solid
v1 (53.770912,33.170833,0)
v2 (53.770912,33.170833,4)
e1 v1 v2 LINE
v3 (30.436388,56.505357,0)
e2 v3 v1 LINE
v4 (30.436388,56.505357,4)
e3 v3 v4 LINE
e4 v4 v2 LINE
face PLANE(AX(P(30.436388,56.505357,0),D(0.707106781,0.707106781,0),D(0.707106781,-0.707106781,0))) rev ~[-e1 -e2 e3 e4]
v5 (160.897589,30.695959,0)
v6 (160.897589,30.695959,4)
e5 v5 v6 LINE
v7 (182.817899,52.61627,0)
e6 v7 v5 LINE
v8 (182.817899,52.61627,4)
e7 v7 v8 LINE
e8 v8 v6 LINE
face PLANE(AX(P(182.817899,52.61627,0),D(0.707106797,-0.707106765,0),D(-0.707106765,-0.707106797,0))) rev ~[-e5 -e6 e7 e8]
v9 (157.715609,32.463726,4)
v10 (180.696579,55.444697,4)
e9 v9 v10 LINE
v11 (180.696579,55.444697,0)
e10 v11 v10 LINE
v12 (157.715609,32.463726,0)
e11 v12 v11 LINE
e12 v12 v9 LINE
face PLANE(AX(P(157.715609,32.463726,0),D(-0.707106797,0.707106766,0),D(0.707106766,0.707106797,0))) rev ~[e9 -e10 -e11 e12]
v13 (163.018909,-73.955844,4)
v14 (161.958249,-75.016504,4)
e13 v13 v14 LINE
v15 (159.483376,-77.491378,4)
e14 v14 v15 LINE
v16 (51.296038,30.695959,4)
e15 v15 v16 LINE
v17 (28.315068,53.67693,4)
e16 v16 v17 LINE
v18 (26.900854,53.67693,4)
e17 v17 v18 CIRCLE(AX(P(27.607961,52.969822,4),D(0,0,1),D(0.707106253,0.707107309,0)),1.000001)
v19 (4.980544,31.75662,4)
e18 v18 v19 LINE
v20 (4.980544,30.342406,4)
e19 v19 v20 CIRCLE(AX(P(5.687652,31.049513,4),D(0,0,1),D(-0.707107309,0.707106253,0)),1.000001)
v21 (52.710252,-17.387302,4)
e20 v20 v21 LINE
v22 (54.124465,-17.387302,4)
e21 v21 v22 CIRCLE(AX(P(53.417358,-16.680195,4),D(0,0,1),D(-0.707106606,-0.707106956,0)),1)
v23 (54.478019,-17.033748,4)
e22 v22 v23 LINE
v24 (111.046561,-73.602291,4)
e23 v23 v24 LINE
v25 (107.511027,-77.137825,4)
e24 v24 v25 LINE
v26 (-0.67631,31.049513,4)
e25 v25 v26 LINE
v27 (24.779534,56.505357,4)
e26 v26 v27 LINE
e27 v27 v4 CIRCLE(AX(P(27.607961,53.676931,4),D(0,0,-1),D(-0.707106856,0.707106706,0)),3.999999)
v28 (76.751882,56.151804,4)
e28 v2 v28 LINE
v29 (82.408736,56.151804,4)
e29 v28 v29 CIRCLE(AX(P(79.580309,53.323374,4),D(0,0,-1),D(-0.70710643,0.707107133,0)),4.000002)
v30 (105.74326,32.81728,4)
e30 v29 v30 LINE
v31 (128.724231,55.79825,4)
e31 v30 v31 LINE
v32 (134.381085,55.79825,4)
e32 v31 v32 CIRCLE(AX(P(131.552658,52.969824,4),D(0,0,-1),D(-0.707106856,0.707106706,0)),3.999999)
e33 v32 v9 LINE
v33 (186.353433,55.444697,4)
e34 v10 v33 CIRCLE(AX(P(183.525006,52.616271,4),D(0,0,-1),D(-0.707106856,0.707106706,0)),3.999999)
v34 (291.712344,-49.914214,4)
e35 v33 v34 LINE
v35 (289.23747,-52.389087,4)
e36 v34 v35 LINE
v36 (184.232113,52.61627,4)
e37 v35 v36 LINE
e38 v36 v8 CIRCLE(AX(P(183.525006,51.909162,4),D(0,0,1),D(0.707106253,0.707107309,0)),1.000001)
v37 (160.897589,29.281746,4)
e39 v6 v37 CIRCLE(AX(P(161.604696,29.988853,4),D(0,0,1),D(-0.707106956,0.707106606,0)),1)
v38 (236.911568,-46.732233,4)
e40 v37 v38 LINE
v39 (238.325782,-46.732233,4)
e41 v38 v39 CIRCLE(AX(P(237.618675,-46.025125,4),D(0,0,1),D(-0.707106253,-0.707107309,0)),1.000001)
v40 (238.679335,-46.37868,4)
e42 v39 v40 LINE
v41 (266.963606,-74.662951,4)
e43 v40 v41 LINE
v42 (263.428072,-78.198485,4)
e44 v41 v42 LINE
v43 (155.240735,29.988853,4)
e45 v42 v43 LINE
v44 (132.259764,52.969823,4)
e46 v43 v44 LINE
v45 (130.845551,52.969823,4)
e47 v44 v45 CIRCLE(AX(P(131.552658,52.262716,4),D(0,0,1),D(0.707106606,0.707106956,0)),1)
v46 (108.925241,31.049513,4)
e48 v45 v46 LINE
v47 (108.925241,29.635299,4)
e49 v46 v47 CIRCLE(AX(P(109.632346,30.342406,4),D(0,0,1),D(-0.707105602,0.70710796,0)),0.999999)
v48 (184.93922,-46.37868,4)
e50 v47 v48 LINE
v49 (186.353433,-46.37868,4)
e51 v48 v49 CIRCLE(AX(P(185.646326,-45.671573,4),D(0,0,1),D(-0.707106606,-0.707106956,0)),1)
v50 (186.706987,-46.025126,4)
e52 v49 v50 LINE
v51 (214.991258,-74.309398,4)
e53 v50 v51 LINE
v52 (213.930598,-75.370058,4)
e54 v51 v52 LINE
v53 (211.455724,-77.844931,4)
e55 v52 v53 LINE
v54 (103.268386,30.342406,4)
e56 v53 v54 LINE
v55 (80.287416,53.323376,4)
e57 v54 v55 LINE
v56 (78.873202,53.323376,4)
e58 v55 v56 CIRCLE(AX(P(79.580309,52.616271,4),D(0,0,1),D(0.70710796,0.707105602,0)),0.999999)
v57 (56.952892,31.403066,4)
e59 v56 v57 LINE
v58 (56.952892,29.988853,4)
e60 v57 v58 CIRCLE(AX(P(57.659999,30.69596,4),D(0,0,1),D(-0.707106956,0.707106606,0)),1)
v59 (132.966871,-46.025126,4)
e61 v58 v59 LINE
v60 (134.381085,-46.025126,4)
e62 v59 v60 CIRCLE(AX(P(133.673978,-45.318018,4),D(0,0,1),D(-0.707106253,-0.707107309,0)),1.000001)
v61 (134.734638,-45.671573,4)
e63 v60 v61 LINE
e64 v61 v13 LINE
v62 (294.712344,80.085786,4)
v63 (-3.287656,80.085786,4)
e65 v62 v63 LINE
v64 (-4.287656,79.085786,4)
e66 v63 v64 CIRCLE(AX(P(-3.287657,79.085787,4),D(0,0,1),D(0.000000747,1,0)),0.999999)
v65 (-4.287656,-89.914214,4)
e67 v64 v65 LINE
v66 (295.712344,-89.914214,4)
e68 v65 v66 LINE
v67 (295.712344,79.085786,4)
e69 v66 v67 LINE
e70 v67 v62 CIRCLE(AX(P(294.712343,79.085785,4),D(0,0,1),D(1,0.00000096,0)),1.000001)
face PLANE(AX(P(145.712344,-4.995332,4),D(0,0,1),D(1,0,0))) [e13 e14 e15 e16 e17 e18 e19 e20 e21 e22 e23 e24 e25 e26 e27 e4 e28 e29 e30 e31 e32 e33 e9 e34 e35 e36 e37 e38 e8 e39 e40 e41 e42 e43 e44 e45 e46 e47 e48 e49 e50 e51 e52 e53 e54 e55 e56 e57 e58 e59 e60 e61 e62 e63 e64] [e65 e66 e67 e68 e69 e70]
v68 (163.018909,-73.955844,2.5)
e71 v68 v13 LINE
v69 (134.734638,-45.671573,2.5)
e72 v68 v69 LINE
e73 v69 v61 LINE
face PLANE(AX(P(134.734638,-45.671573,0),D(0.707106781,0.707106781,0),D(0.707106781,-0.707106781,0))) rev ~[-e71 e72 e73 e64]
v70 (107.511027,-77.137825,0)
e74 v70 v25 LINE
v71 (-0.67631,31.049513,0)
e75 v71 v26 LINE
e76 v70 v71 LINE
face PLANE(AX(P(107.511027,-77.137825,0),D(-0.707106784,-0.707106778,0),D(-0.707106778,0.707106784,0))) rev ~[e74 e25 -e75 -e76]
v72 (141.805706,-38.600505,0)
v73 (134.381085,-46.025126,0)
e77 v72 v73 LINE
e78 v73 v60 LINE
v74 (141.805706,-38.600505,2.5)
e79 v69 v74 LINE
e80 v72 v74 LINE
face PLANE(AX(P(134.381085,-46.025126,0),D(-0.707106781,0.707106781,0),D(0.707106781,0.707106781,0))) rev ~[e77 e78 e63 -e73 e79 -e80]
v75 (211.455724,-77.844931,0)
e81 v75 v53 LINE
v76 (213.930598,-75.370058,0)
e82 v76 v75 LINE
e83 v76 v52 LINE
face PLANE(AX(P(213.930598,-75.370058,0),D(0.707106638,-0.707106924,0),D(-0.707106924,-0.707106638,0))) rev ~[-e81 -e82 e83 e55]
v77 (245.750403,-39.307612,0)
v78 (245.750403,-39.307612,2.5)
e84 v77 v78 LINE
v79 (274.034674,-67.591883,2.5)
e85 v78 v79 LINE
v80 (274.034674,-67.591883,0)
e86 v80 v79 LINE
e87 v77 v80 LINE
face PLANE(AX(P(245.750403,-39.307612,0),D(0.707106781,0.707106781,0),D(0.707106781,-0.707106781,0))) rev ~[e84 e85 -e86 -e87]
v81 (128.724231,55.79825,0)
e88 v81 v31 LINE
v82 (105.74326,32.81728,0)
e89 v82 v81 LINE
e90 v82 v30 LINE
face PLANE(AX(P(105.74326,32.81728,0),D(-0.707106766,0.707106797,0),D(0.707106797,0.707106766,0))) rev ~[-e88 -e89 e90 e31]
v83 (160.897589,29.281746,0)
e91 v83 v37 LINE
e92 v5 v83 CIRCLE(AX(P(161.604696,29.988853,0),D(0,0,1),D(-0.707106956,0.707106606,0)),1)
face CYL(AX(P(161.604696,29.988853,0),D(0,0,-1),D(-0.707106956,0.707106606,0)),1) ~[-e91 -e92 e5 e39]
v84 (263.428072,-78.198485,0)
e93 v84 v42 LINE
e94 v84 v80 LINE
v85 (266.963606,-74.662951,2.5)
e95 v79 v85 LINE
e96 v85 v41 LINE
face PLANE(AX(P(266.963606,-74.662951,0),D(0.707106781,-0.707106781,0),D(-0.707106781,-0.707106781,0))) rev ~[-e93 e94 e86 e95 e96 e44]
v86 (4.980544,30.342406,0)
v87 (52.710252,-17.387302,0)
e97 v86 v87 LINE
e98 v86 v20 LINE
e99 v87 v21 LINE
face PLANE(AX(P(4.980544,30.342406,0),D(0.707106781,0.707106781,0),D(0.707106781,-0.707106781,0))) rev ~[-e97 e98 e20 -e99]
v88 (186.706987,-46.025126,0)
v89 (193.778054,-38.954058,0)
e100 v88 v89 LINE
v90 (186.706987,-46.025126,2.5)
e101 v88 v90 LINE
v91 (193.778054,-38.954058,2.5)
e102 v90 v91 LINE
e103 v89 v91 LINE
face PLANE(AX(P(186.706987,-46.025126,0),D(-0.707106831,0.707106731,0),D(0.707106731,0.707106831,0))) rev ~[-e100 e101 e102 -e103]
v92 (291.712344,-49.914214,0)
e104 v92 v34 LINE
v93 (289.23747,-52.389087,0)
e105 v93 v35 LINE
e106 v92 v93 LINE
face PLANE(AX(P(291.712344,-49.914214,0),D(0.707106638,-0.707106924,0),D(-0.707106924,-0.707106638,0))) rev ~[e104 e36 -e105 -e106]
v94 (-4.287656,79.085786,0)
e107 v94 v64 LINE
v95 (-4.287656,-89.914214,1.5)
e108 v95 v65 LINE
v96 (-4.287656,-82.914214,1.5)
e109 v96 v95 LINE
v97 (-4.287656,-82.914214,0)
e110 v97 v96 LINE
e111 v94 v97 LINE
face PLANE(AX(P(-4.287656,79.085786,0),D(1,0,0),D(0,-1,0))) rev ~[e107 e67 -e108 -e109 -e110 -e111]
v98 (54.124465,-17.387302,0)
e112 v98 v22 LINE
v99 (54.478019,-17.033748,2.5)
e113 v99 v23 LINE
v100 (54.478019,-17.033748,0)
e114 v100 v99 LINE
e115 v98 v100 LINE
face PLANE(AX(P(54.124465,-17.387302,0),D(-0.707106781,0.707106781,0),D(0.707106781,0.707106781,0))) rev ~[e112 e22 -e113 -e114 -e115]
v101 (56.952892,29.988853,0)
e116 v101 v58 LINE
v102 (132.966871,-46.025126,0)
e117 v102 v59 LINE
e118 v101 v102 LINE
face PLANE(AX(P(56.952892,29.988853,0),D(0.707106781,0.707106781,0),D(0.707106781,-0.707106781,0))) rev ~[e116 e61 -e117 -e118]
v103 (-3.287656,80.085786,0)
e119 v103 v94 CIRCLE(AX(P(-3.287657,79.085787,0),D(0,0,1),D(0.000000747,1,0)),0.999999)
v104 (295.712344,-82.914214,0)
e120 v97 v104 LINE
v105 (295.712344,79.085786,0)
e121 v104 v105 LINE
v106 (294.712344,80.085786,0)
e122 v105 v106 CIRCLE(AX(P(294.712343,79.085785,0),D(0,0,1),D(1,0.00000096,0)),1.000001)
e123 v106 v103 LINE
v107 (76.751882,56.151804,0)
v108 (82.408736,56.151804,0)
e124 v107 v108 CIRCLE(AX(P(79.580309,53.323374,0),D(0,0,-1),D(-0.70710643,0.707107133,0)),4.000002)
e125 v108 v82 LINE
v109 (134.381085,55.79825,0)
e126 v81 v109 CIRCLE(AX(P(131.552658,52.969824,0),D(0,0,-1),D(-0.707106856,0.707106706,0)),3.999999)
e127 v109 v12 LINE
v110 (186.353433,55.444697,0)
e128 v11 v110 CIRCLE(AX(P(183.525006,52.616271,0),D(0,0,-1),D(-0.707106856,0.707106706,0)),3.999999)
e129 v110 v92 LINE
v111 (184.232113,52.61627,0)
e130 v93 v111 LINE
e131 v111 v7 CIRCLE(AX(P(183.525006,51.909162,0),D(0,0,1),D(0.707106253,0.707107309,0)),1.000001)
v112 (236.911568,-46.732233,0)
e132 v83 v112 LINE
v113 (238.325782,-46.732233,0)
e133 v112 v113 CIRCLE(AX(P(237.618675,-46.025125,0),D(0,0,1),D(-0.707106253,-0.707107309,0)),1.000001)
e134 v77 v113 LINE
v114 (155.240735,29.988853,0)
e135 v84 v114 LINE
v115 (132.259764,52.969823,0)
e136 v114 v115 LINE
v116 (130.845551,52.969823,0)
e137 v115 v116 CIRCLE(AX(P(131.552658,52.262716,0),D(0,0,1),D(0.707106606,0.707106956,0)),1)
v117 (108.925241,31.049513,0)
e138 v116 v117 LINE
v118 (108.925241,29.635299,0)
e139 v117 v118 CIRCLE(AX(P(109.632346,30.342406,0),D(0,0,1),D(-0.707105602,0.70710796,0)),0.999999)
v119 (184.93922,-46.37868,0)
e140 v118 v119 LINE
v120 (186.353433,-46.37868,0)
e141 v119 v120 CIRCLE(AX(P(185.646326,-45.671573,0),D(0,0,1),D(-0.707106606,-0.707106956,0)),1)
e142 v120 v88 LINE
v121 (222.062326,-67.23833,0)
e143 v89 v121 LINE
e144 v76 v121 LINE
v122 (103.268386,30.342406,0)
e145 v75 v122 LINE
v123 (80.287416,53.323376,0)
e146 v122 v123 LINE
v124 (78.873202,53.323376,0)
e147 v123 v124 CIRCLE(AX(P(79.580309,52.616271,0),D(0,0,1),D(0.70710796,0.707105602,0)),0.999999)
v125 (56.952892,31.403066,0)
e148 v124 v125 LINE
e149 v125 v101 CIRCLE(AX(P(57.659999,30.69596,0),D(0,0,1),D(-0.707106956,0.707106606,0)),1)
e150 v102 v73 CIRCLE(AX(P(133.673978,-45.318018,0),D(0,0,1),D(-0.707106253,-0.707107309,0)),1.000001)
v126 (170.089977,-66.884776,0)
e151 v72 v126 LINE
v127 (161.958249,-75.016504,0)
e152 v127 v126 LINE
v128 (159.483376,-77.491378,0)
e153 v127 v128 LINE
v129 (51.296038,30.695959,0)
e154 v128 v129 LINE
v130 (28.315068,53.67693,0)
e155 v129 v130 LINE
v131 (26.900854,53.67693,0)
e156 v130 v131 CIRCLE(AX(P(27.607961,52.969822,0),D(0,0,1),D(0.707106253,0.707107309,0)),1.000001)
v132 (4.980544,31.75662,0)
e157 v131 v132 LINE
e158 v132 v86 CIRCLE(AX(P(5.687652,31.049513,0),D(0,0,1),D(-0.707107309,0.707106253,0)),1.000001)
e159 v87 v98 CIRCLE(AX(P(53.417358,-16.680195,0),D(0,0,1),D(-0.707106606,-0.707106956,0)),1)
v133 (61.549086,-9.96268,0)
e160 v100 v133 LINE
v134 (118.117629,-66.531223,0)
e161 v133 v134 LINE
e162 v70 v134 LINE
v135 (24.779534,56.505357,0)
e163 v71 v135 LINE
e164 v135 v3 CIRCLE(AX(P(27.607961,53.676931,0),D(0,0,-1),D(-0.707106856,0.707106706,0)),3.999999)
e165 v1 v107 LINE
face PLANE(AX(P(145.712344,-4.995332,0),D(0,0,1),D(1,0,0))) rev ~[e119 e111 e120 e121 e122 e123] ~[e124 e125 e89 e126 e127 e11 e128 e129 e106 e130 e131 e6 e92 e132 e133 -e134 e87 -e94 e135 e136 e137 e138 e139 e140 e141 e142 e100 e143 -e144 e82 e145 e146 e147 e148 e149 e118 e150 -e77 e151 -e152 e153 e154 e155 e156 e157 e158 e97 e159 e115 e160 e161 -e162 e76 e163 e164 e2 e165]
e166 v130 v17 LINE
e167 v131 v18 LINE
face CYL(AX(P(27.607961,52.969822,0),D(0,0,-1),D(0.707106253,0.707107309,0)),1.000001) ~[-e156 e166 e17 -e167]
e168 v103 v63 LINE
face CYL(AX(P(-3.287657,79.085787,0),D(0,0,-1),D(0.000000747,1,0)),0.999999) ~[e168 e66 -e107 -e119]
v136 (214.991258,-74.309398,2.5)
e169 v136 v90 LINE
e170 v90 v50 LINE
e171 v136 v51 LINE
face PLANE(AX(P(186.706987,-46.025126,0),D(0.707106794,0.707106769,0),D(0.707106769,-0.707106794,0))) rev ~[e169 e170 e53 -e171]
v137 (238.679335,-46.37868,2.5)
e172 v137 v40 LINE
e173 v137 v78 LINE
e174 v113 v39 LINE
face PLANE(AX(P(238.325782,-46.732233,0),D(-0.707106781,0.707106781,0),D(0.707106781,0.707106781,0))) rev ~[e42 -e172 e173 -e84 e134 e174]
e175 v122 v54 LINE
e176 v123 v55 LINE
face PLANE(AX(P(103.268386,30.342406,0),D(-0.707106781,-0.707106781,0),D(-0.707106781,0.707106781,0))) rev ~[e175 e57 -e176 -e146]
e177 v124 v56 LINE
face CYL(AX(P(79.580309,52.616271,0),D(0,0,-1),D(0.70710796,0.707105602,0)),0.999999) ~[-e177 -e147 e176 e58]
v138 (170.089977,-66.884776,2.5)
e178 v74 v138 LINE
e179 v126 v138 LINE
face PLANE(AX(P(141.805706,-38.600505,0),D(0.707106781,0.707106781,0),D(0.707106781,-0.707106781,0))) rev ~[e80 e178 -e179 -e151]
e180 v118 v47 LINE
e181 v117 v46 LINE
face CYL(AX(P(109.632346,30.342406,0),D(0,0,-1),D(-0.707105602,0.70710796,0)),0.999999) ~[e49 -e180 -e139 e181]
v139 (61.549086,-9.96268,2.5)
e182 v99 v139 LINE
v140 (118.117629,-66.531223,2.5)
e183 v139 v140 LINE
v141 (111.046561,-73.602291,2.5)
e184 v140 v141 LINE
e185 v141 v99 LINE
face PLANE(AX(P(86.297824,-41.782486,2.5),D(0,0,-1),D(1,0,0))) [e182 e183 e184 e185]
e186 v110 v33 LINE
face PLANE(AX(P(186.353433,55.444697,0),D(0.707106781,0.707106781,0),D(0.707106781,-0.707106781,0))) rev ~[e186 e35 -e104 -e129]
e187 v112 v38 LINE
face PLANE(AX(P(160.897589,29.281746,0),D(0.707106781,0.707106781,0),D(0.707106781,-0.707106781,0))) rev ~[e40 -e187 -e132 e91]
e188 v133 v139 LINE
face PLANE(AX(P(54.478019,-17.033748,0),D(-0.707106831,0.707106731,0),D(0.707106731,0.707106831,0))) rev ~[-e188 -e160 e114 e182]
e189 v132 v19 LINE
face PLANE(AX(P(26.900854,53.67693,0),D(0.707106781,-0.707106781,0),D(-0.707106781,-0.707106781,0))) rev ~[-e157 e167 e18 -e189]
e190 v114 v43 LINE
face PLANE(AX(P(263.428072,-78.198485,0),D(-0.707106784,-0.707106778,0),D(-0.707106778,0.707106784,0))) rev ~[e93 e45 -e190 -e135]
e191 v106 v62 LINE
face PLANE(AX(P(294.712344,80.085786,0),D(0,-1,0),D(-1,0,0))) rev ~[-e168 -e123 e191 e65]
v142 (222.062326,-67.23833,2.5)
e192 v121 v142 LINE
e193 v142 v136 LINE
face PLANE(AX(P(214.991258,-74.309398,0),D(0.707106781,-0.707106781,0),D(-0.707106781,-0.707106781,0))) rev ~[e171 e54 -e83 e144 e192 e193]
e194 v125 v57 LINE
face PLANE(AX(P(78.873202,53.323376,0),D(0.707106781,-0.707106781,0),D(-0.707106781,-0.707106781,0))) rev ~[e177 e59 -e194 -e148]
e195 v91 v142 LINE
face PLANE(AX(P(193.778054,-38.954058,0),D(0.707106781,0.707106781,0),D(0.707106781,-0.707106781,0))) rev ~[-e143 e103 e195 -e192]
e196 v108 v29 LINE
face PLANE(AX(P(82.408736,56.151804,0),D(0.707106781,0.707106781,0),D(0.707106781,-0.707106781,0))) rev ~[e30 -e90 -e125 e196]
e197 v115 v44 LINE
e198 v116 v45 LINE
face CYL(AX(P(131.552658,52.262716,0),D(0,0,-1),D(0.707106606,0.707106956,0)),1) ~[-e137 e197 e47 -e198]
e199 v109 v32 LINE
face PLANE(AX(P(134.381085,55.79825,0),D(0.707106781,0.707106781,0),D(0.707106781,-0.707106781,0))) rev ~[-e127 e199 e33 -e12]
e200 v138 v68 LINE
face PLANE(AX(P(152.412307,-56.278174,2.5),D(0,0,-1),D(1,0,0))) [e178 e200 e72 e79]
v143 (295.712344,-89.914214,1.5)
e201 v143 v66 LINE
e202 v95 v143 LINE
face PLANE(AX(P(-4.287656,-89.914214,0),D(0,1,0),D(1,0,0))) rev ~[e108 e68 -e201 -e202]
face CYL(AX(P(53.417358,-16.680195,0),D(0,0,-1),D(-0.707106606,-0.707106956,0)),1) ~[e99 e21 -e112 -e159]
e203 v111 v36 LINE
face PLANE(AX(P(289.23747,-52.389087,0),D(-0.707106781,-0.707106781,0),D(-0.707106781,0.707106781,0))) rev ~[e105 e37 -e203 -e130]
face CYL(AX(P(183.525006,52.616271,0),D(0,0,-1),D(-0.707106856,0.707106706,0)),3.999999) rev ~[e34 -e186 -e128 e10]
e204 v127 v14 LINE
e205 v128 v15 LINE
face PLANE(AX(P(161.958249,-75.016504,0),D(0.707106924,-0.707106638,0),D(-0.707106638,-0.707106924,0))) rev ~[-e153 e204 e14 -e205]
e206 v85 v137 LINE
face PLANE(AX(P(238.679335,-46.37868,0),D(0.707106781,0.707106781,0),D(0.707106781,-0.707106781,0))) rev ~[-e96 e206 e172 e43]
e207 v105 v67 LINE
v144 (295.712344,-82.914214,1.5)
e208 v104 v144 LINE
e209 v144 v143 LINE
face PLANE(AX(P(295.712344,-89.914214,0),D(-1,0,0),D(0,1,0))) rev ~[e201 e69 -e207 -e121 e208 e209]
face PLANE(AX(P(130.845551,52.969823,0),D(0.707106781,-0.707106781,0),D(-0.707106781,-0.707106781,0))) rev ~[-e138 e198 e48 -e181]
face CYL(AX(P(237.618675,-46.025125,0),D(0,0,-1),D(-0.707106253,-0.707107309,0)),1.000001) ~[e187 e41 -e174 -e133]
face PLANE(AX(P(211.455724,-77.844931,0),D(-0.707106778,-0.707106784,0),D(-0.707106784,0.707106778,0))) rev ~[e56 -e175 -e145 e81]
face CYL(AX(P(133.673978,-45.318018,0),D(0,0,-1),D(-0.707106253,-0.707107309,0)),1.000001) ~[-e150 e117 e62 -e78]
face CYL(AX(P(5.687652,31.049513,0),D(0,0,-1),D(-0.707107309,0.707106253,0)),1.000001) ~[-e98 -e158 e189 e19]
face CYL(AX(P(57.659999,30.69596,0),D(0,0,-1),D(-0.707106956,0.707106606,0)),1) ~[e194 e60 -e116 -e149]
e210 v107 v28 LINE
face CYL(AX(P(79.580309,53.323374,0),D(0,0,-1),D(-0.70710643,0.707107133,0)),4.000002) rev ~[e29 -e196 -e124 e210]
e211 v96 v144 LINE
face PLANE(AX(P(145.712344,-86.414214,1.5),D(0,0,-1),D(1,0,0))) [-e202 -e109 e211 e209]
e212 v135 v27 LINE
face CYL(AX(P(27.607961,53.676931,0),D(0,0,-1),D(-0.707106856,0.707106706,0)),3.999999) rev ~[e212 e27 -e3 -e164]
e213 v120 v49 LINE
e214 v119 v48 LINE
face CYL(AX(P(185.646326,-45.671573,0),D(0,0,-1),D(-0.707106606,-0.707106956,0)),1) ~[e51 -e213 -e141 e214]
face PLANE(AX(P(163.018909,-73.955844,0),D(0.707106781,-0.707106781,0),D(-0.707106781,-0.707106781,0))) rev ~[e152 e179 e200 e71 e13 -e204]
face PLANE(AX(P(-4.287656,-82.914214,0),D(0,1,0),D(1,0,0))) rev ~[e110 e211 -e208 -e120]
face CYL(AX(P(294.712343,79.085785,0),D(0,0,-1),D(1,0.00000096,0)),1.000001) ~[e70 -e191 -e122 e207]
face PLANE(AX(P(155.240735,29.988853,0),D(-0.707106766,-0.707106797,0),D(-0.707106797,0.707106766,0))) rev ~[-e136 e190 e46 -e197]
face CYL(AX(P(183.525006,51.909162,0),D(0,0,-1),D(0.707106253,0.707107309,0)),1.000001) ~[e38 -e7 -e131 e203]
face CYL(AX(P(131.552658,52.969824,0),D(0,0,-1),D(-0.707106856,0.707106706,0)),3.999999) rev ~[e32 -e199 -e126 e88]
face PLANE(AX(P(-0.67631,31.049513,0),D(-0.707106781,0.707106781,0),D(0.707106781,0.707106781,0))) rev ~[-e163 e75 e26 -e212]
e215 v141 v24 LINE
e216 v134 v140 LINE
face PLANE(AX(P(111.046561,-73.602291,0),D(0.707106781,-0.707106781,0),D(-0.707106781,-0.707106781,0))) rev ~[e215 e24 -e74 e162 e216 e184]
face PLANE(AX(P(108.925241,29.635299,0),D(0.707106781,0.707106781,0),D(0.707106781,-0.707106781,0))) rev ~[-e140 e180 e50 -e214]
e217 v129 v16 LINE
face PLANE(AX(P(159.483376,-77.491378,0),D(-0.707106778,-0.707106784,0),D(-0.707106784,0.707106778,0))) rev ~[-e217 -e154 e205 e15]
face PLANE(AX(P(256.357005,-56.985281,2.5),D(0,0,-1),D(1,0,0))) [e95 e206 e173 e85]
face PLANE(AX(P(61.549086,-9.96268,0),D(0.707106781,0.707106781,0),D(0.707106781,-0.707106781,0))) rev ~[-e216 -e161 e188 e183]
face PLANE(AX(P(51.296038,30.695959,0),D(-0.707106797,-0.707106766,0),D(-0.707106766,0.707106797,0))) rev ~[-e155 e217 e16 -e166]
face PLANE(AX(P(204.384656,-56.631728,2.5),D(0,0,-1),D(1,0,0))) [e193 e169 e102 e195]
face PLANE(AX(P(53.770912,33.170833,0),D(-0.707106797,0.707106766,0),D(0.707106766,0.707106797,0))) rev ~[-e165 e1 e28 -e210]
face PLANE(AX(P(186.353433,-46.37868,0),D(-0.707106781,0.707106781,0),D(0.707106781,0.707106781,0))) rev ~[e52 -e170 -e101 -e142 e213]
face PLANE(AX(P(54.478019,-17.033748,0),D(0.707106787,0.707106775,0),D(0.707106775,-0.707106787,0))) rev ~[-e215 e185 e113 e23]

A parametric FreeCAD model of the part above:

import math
import FreeCAD as App
import Part
import Sketcher
from FreeCAD import Vector
Q = App.Units.Quantity

doc = App.newDocument("Part")
params = doc.addObject("Spreadsheet::Sheet", "Params")
for row, (alias, value) in enumerate([
    ("sketch1_radius", "1.000001 mm"),
    ("sketch1_radius2", "3.999999 mm"),
    ("sketch1_width", "300 mm"),
    ("sketch1_height", "169 mm"),
    ("sketch1_length", "149.000001 mm"),
    ("pad1_length", "4 mm"),
    ("sketch2_width", "300 mm"),
    ("sketch2_height", "7 mm"),
    ("pocket1_length", "1.5 mm"),
    ("sketch3_length", "10 mm"),
    ("sketch3_length2", "80 mm"),
    ("sketch3_length3", "40 mm"),
    ("pocket2_length", "2.5 mm"),
], start=1):
    params.set(f"A{row}", alias)
    params.set(f"B{row}", "=" + value)
    params.setAlias(f"B{row}", alias)

body = doc.addObject("PartDesign::Body", "Body")

sketch1 = body.newObject("Sketcher::SketchObject", "Sketch")
sketch1.AttachmentSupport = (doc.getObject("XY_Plane"), [""])
sketch1.MapMode = "FlatFace"
sketch1.addGeometry(Part.LineSegment(Vector(-4.29, -89.91, 0), Vector(295.71, -89.91, 0)), False)
sketch1.addGeometry(Part.LineSegment(Vector(295.71, -89.91, 0), Vector(295.71, 79.09, 0)), False)
sketch1.addGeometry(Part.ArcOfCircle(Part.Circle(Vector(294.71, 79.09, 0), Vector(0, 0, 1), 1), math.radians(0), math.radians(90)), False)
sketch1.addGeometry(Part.LineSegment(Vector(294.71, 80.09, 0), Vector(-3.29, 80.09, 0)), False)
sketch1.addGeometry(Part.ArcOfCircle(Part.Circle(Vector(-3.29, 79.09, 0), Vector(0, 0, 1), 1), math.radians(90), math.radians(180)), False)
sketch1.addGeometry(Part.LineSegment(Vector(-4.29, 79.09, 0), Vector(-4.29, -89.91, 0)), False)
sketch1.addGeometry(Part.LineSegment(Vector(157.72, 32.46, 0), Vector(180.7, 55.44, 0)), False)
sketch1.addGeometry(Part.ArcOfCircle(Part.Circle(Vector(183.53, 52.62, 0), Vector(0, 0, 1), 4), math.radians(45), math.radians(135)), False)
sketch1.addGeometry(Part.LineSegment(Vector(186.35, 55.44, 0), Vector(291.71, -49.91, 0)), False)
sketch1.addGeometry(Part.LineSegment(Vector(291.71, -49.91, 0), Vector(289.24, -52.39, 0)), False)
sketch1.addGeometry(Part.LineSegment(Vector(289.24, -52.39, 0), Vector(184.23, 52.62, 0)), False)
sketch1.addGeometry(Part.ArcOfCircle(Part.Circle(Vector(183.53, 51.91, 0), Vector(0, 0, 1), 1), math.radians(45), math.radians(135)), False)
sketch1.addGeometry(Part.LineSegment(Vector(182.82, 52.62, 0), Vector(160.9, 30.7, 0)), False)
sketch1.addGeometry(Part.ArcOfCircle(Part.Circle(Vector(161.6, 29.99, 0), Vector(0, 0, 1), 1), math.radians(135), math.radians(225)), False)
sketch1.addGeometry(Part.LineSegment(Vector(160.9, 29.28, 0), Vector(236.91, -46.73, 0)), False)
sketch1.addGeometry(Part.ArcOfCircle(Part.Circle(Vector(237.62, -46.03, 0), Vector(0, 0, 1), 1), math.radians(-135), math.radians(-45)), False)
sketch1.addGeometry(Part.LineSegment(Vector(238.33, -46.73, 0), Vector(238.68, -46.38, 0)), False)
sketch1.addGeometry(Part.LineSegment(Vector(238.68, -46.38, 0), Vector(266.96, -74.66, 0)), False)
sketch1.addGeometry(Part.LineSegment(Vector(266.96, -74.66, 0), Vector(263.43, -78.2, 0)), False)
sketch1.addGeometry(Part.LineSegment(Vector(263.43, -78.2, 0), Vector(155.24, 29.99, 0)), False)
sketch1.addGeometry(Part.LineSegment(Vector(155.24, 29.99, 0), Vector(132.26, 52.97, 0)), False)
sketch1.addGeometry(Part.ArcOfCircle(Part.Circle(Vector(131.55, 52.26, 0), Vector(0, 0, 1), 1), math.radians(45), math.radians(135)), False)
sketch1.addGeometry(Part.LineSegment(Vector(130.85, 52.97, 0), Vector(108.93, 31.05, 0)), False)
sketch1.addGeometry(Part.ArcOfCircle(Part.Circle(Vector(109.63, 30.34, 0), Vector(0, 0, 1), 1), math.radians(135), math.radians(225)), False)
sketch1.addGeometry(Part.LineSegment(Vector(108.93, 29.64, 0), Vector(184.94, -46.38, 0)), False)
sketch1.addGeometry(Part.ArcOfCircle(Part.Circle(Vector(185.65, -45.67, 0), Vector(0, 0, 1), 1), math.radians(-135), math.radians(-45)), False)
sketch1.addGeometry(Part.LineSegment(Vector(186.35, -46.38, 0), Vector(186.71, -46.03, 0)), False)
sketch1.addGeometry(Part.LineSegment(Vector(186.71, -46.03, 0), Vector(214.99, -74.31, 0)), False)
sketch1.addGeometry(Part.LineSegment(Vector(214.99, -74.31, 0), Vector(213.93, -75.37, 0)), False)
sketch1.addGeometry(Part.LineSegment(Vector(213.93, -75.37, 0), Vector(211.46, -77.84, 0)), False)
sketch1.addGeometry(Part.LineSegment(Vector(211.46, -77.84, 0), Vector(103.27, 30.34, 0)), False)
sketch1.addGeometry(Part.LineSegment(Vector(103.27, 30.34, 0), Vector(80.29, 53.32, 0)), False)
sketch1.addGeometry(Part.ArcOfCircle(Part.Circle(Vector(79.58, 52.62, 0), Vector(0, 0, 1), 1), math.radians(45), math.radians(135)), False)
sketch1.addGeometry(Part.LineSegment(Vector(78.87, 53.32, 0), Vector(56.95, 31.4, 0)), False)
sketch1.addGeometry(Part.ArcOfCircle(Part.Circle(Vector(57.66, 30.7, 0), Vector(0, 0, 1), 1), math.radians(135), math.radians(225)), False)
sketch1.addGeometry(Part.LineSegment(Vector(56.95, 29.99, 0), Vector(132.97, -46.03, 0)), False)
sketch1.addGeometry(Part.ArcOfCircle(Part.Circle(Vector(133.67, -45.32, 0), Vector(0, 0, 1), 1), math.radians(-135), math.radians(-45)), False)
sketch1.addGeometry(Part.LineSegment(Vector(134.38, -46.03, 0), Vector(134.73, -45.67, 0)), False)
sketch1.addGeometry(Part.LineSegment(Vector(134.73, -45.67, 0), Vector(163.02, -73.96, 0)), False)
sketch1.addGeometry(Part.LineSegment(Vector(163.02, -73.96, 0), Vector(161.96, -75.02, 0)), False)
sketch1.addGeometry(Part.LineSegment(Vector(161.96, -75.02, 0), Vector(159.48, -77.49, 0)), False)
sketch1.addGeometry(Part.LineSegment(Vector(159.48, -77.49, 0), Vector(51.3, 30.7, 0)), False)
sketch1.addGeometry(Part.LineSegment(Vector(51.3, 30.7, 0), Vector(28.32, 53.68, 0)), False)
sketch1.addGeometry(Part.ArcOfCircle(Part.Circle(Vector(27.61, 52.97, 0), Vector(0, 0, 1), 1), math.radians(45), math.radians(135)), False)
sketch1.addGeometry(Part.LineSegment(Vector(26.9, 53.68, 0), Vector(4.98, 31.76, 0)), False)
sketch1.addGeometry(Part.ArcOfCircle(Part.Circle(Vector(5.69, 31.05, 0), Vector(0, 0, 1), 1), math.radians(135), math.radians(225)), False)
sketch1.addGeometry(Part.LineSegment(Vector(4.98, 30.34, 0), Vector(52.71, -17.39, 0)), False)
sketch1.addGeometry(Part.ArcOfCircle(Part.Circle(Vector(53.42, -16.68, 0), Vector(0, 0, 1), 1), math.radians(-135), math.radians(-45)), False)
sketch1.addGeometry(Part.LineSegment(Vector(54.12, -17.39, 0), Vector(54.48, -17.03, 0)), False)
sketch1.addGeometry(Part.LineSegment(Vector(54.48, -17.03, 0), Vector(111.05, -73.6, 0)), False)
sketch1.addGeometry(Part.LineSegment(Vector(111.05, -73.6, 0), Vector(107.51, -77.14, 0)), False)
sketch1.addGeometry(Part.LineSegment(Vector(107.51, -77.14, 0), Vector(-0.68, 31.05, 0)), False)
sketch1.addGeometry(Part.LineSegment(Vector(-0.68, 31.05, 0), Vector(24.78, 56.51, 0)), False)
sketch1.addGeometry(Part.ArcOfCircle(Part.Circle(Vector(27.61, 53.68, 0), Vector(0, 0, 1), 4), math.radians(45), math.radians(135)), False)
sketch1.addGeometry(Part.LineSegment(Vector(30.44, 56.51, 0), Vector(53.77, 33.17, 0)), False)
sketch1.addGeometry(Part.LineSegment(Vector(53.77, 33.17, 0), Vector(76.75, 56.15, 0)), False)
sketch1.addGeometry(Part.ArcOfCircle(Part.Circle(Vector(79.58, 53.32, 0), Vector(0, 0, 1), 4), math.radians(45), math.radians(135)), False)
sketch1.addGeometry(Part.LineSegment(Vector(82.41, 56.15, 0), Vector(105.74, 32.82, 0)), False)
sketch1.addGeometry(Part.LineSegment(Vector(105.74, 32.82, 0), Vector(128.72, 55.8, 0)), False)
sketch1.addGeometry(Part.ArcOfCircle(Part.Circle(Vector(131.55, 52.97, 0), Vector(0, 0, 1), 4), math.radians(45), math.radians(135)), False)
sketch1.addGeometry(Part.LineSegment(Vector(134.38, 55.8, 0), Vector(157.72, 32.46, 0)), False)
sketch1.addConstraint(Sketcher.Constraint("Coincident", 0, 2, 1, 1))
sketch1.addConstraint(Sketcher.Constraint("Tangent", 1, 2, 2, 1))
sketch1.addConstraint(Sketcher.Constraint("Tangent", 2, 2, 3, 1))
sketch1.addConstraint(Sketcher.Constraint("Tangent", 3, 2, 4, 1))
sketch1.addConstraint(Sketcher.Constraint("Tangent", 4, 2, 5, 1))
sketch1.addConstraint(Sketcher.Constraint("Coincident", 5, 2, 0, 1))
sketch1.addConstraint(Sketcher.Constraint("Tangent", 6, 2, 7, 2))
sketch1.addConstraint(Sketcher.Constraint("Tangent", 7, 1, 8, 1))
sketch1.addConstraint(Sketcher.Constraint("Coincident", 8, 2, 9, 1))
sketch1.addConstraint(Sketcher.Constraint("Coincident", 9, 2, 10, 1))
sketch1.addConstraint(Sketcher.Constraint("Tangent", 10, 2, 11, 1))
sketch1.addConstraint(Sketcher.Constraint("Tangent", 11, 2, 12, 1))
sketch1.addConstraint(Sketcher.Constraint("Tangent", 12, 2, 13, 1))
sketch1.addConstraint(Sketcher.Constraint("Tangent", 13, 2, 14, 1))
sketch1.addConstraint(Sketcher.Constraint("Tangent", 14, 2, 15, 1))
sketch1.addConstraint(Sketcher.Constraint("Tangent", 15, 2, 16, 1))
sketch1.addConstraint(Sketcher.Constraint("Coincident", 16, 2, 17, 1))
sketch1.addConstraint(Sketcher.Constraint("Coincident", 17, 2, 18, 1))
sketch1.addConstraint(Sketcher.Constraint("Coincident", 18, 2, 19, 1))
sketch1.addConstraint(Sketcher.Constraint("Coincident", 19, 2, 20, 1))
sketch1.addConstraint(Sketcher.Constraint("Tangent", 20, 2, 21, 1))
sketch1.addConstraint(Sketcher.Constraint("Tangent", 21, 2, 22, 1))
sketch1.addConstraint(Sketcher.Constraint("Tangent", 22, 2, 23, 1))
sketch1.addConstraint(Sketcher.Constraint("Tangent", 23, 2, 24, 1))
sketch1.addConstraint(Sketcher.Constraint("Tangent", 24, 2, 25, 1))
sketch1.addConstraint(Sketcher.Constraint("Tangent", 25, 2, 26, 1))
sketch1.addConstraint(Sketcher.Constraint("Coincident", 26, 2, 27, 1))
sketch1.addConstraint(Sketcher.Constraint("Coincident", 27, 2, 28, 1))
sketch1.addConstraint(Sketcher.Constraint("Coincident", 28, 2, 29, 1))
sketch1.addConstraint(Sketcher.Constraint("Coincident", 29, 2, 30, 1))
sketch1.addConstraint(Sketcher.Constraint("Coincident", 30, 2, 31, 1))
sketch1.addConstraint(Sketcher.Constraint("Tangent", 31, 2, 32, 1))
sketch1.addConstraint(Sketcher.Constraint("Tangent", 32, 2, 33, 1))
sketch1.addConstraint(Sketcher.Constraint("Tangent", 33, 2, 34, 1))
sketch1.addConstraint(Sketcher.Constraint("Tangent", 34, 2, 35, 1))
sketch1.addConstraint(Sketcher.Constraint("Tangent", 35, 2, 36, 1))
sketch1.addConstraint(Sketcher.Constraint("Tangent", 36, 2, 37, 1))
sketch1.addConstraint(Sketcher.Constraint("Coincident", 37, 2, 38, 1))
sketch1.addConstraint(Sketcher.Constraint("Coincident", 38, 2, 39, 1))
sketch1.addConstraint(Sketcher.Constraint("Coincident", 39, 2, 40, 1))
sketch1.addConstraint(Sketcher.Constraint("Coincident", 40, 2, 41, 1))
sketch1.addConstraint(Sketcher.Constraint("Coincident", 41, 2, 42, 1))
sketch1.addConstraint(Sketcher.Constraint("Tangent", 42, 2, 43, 1))
sketch1.addConstraint(Sketcher.Constraint("Tangent", 43, 2, 44, 1))
sketch1.addConstraint(Sketcher.Constraint("Tangent", 44, 2, 45, 1))
sketch1.addConstraint(Sketcher.Constraint("Tangent", 45, 2, 46, 1))
sketch1.addConstraint(Sketcher.Constraint("Tangent", 46, 2, 47, 1))
sketch1.addConstraint(Sketcher.Constraint("Tangent", 47, 2, 48, 1))
sketch1.addConstraint(Sketcher.Constraint("Coincident", 48, 2, 49, 1))
sketch1.addConstraint(Sketcher.Constraint("Coincident", 49, 2, 50, 1))
sketch1.addConstraint(Sketcher.Constraint("Coincident", 50, 2, 51, 1))
sketch1.addConstraint(Sketcher.Constraint("Coincident", 51, 2, 52, 1))
sketch1.addConstraint(Sketcher.Constraint("Tangent", 52, 2, 53, 2))
sketch1.addConstraint(Sketcher.Constraint("Tangent", 53, 1, 54, 1))
sketch1.addConstraint(Sketcher.Constraint("Coincident", 54, 2, 55, 1))
sketch1.addConstraint(Sketcher.Constraint("Tangent", 55, 2, 56, 2))
sketch1.addConstraint(Sketcher.Constraint("Tangent", 56, 1, 57, 1))
sketch1.addConstraint(Sketcher.Constraint("Coincident", 57, 2, 58, 1))
sketch1.addConstraint(Sketcher.Constraint("Tangent", 58, 2, 59, 2))
sketch1.addConstraint(Sketcher.Constraint("Tangent", 59, 1, 60, 1))
sketch1.addConstraint(Sketcher.Constraint("Coincident", 60, 2, 6, 1))
sketch1.addConstraint(Sketcher.Constraint("Horizontal", 0))
sketch1.addConstraint(Sketcher.Constraint("Vertical", 1))
sketch1.addConstraint(Sketcher.Constraint("Horizontal", 3))
sketch1.addConstraint(Sketcher.Constraint("Vertical", 5))
sketch1.addConstraint(Sketcher.Constraint("Equal", 2, 4))
sketch1.addConstraint(Sketcher.Constraint("Equal", 4, 11))
sketch1.addConstraint(Sketcher.Constraint("Equal", 11, 13))
sketch1.addConstraint(Sketcher.Constraint("Equal", 13, 15))
sketch1.addConstraint(Sketcher.Constraint("Equal", 15, 21))
sketch1.addConstraint(Sketcher.Constraint("Equal", 21, 23))
sketch1.addConstraint(Sketcher.Constraint("Equal", 23, 25))
sketch1.addConstraint(Sketcher.Constraint("Equal", 25, 32))
sketch1.addConstraint(Sketcher.Constraint("Equal", 32, 34))
sketch1.addConstraint(Sketcher.Constraint("Equal", 34, 36))
sketch1.addConstraint(Sketcher.Constraint("Equal", 36, 43))
sketch1.addConstraint(Sketcher.Constraint("Equal", 43, 45))
sketch1.addConstraint(Sketcher.Constraint("Equal", 45, 47))
sketch1.addConstraint(Sketcher.Constraint("Equal", 7, 53))
sketch1.addConstraint(Sketcher.Constraint("Equal", 53, 59))
sketch1.addConstraint(Sketcher.Constraint("Perpendicular", 6, 8))
sketch1.addConstraint(Sketcher.Constraint("Perpendicular", 8, 9))
sketch1.addConstraint(Sketcher.Constraint("Perpendicular", 9, 10))
sketch1.addConstraint(Sketcher.Constraint("Perpendicular", 10, 12))
sketch1.addConstraint(Sketcher.Constraint("Perpendicular", 12, 14))
sketch1.addConstraint(Sketcher.Constraint("Perpendicular", 14, 16))
sketch1.addConstraint(Sketcher.Constraint("Perpendicular", 16, 17))
sketch1.addConstraint(Sketcher.Constraint("Perpendicular", 17, 18))
sketch1.addConstraint(Sketcher.Constraint("Perpendicular", 18, 19))
sketch1.addConstraint(Sketcher.Constraint("Parallel", 19, 20))
sketch1.addConstraint(Sketcher.Constraint("Perpendicular", 20, 22))
sketch1.addConstraint(Sketcher.Constraint("Perpendicular", 22, 24))
sketch1.addConstraint(Sketcher.Constraint("Perpendicular", 24, 26))
sketch1.addConstraint(Sketcher.Constraint("Perpendicular", 26, 27))
sketch1.addConstraint(Sketcher.Constraint("Perpendicular", 27, 28))
sketch1.addConstraint(Sketcher.Constraint("Parallel", 28, 29))
sketch1.addConstraint(Sketcher.Constraint("Perpendicular", 29, 30))
sketch1.addConstraint(Sketcher.Constraint("Parallel", 30, 31))
sketch1.addConstraint(Sketcher.Constraint("Perpendicular", 31, 33))
sketch1.addConstraint(Sketcher.Constraint("Perpendicular", 33, 35))
sketch1.addConstraint(Sketcher.Constraint("Perpendicular", 35, 37))
sketch1.addConstraint(Sketcher.Constraint("Perpendicular", 37, 38))
sketch1.addConstraint(Sketcher.Constraint("Perpendicular", 38, 39))
sketch1.addConstraint(Sketcher.Constraint("Parallel", 39, 40))
sketch1.addConstraint(Sketcher.Constraint("Perpendicular", 40, 41))
sketch1.addConstraint(Sketcher.Constraint("Parallel", 41, 42))
sketch1.addConstraint(Sketcher.Constraint("Perpendicular", 42, 44))
sketch1.addConstraint(Sketcher.Constraint("Perpendicular", 44, 46))
sketch1.addConstraint(Sketcher.Constraint("Perpendicular", 46, 48))
sketch1.addConstraint(Sketcher.Constraint("Perpendicular", 48, 49))
sketch1.addConstraint(Sketcher.Constraint("Perpendicular", 49, 50))
sketch1.addConstraint(Sketcher.Constraint("Perpendicular", 50, 51))
sketch1.addConstraint(Sketcher.Constraint("Perpendicular", 51, 52))
sketch1.addConstraint(Sketcher.Constraint("Perpendicular", 52, 54))
sketch1.addConstraint(Sketcher.Constraint("Perpendicular", 54, 55))
sketch1.addConstraint(Sketcher.Constraint("Perpendicular", 55, 57))
sketch1.addConstraint(Sketcher.Constraint("Perpendicular", 57, 58))
sketch1.addConstraint(Sketcher.Constraint("Perpendicular", 58, 60))
sketch1.addConstraint(Sketcher.Constraint("Horizontal", 7, 3, 32, 3))
sketch1.addConstraint(Sketcher.Constraint("Horizontal", 43, 3, 59, 3))
sketch1.addConstraint(Sketcher.Constraint("Horizontal", 6, 2, 7, 1))
sketch1.addConstraint(Sketcher.Constraint("Horizontal", 32, 3, 10, 2))
sketch1.addConstraint(Sketcher.Constraint("Horizontal", 34, 3, 12, 2))
sketch1.addConstraint(Sketcher.Constraint("Horizontal", 13, 3, 19, 2))
sketch1.addConstraint(Sketcher.Constraint("Horizontal", 59, 3, 20, 2))
sketch1.addConstraint(Sketcher.Constraint("Horizontal", 45, 3, 22, 2))
sketch1.addConstraint(Sketcher.Constraint("Horizontal", 16, 2, 24, 2))
sketch1.addConstraint(Sketcher.Constraint("Horizontal", 15, 3, 26, 2))
sketch1.addConstraint(Sketcher.Constraint("Horizontal", 23, 3, 30, 2))
sketch1.addConstraint(Sketcher.Constraint("Horizontal", 56, 3, 31, 2))
sketch1.addConstraint(Sketcher.Constraint("Horizontal", 26, 2, 35, 2))
sketch1.addConstraint(Sketcher.Constraint("Horizontal", 25, 3, 37, 2))
sketch1.addConstraint(Sketcher.Constraint("Horizontal", 12, 2, 41, 2))
sketch1.addConstraint(Sketcher.Constraint("Horizontal", 53, 3, 42, 2))
sketch1.addConstraint(Sketcher.Constraint("Horizontal", 22, 2, 51, 2))
sketch1.addConstraint(Sketcher.Constraint("Vertical", 7, 3, 11, 3))
sketch1.addConstraint(Sketcher.Constraint("Vertical", 43, 3, 53, 3))
sketch1.addConstraint(Sketcher.Constraint("Vertical", 32, 3, 56, 3))
sketch1.addConstraint(Sketcher.Constraint("Vertical", 21, 3, 59, 3))
sketch1.addConstraint(Sketcher.Constraint("Vertical", 7, 1, 25, 2))
sketch1.addConstraint(Sketcher.Constraint("Vertical", 36, 2, 59, 1))
sketch1.addConstraint(Sketcher.Constraint("Equal", 6, 20))
sketch1.addConstraint(Sketcher.Constraint("Equal", 12, 22))
sketch1.addConstraint(Sketcher.Constraint("Equal", 14, 24))
sketch1.addConstraint(Sketcher.Constraint("Equal", 16, 26))
sketch1.addConstraint(Sketcher.Constraint("Equal", 17, 27))
sketch1.addConstraint(Sketcher.Constraint("Equal", 9, 29))
sketch1.addConstraint(Sketcher.Constraint("Equal", 27, 38))
sketch1.addConstraint(Sketcher.Constraint("Equal", 28, 39))
sketch1.addConstraint(Sketcher.Constraint("Equal", 29, 40))
sketch1.addConstraint(Sketcher.Constraint("Equal", 37, 48))
sketch1.addConstraint(Sketcher.Constraint("Equal", 41, 51))
sketch1.addConstraint(Sketcher.Constraint("Equal", 54, 57))
sketch1.addConstraint(Sketcher.Constraint("Radius", 2, 1.000001))
sketch1.addConstraint(Sketcher.Constraint("Radius", 7, 3.999999))
sketch1.addConstraint(Sketcher.Constraint("DistanceX", 0, 1, 0, 2, 300.0))
sketch1.addConstraint(Sketcher.Constraint("DistanceY", 1, 1, 1, 2, 169.0))
sketch1.addConstraint(Sketcher.Constraint("Distance", 8, 149.000001))
sketch1.addConstraint(Sketcher.Constraint("Distance", 12, 31.0))
sketch1.addConstraint(Sketcher.Constraint("Distance", 17, 40.0))
sketch1.addConstraint(Sketcher.Constraint("Distance", 49, 80.0))
sketch1.addConstraint(Sketcher.Constraint("DistanceX", -1, 1, 34, 3, 57.659999))
sketch1.addConstraint(Sketcher.Constraint("DistanceY", -1, 1, 23, 2, 29.635299))
sketch1.addConstraint(Sketcher.Constraint("DistanceX", -1, 1, 2, 3, 294.712343))
sketch1.addConstraint(Sketcher.Constraint("DistanceY", -1, 1, 2, 3, 79.085785))
sketch1.setExpression("Constraints[153]", "Params.sketch1_radius")
sketch1.setExpression("Constraints[154]", "Params.sketch1_radius2")
sketch1.setExpression("Constraints[155]", "Params.sketch1_width")
sketch1.setExpression("Constraints[156]", "Params.sketch1_height")
sketch1.setExpression("Constraints[157]", "Params.sketch1_length")
pad1 = body.newObject("PartDesign::Pad", "Pad")
pad1.Profile = sketch1
pad1.setExpression("Length", "Params.pad1_length")

sketch2 = body.newObject("Sketcher::SketchObject", "Sketch001")
sketch2.AttachmentSupport = (doc.getObject("XY_Plane"), [""])
sketch2.MapMode = "FlatFace"
sketch2.addGeometry(Part.LineSegment(Vector(-4, -90, 0), Vector(-4, -83, 0)), False)
sketch2.addGeometry(Part.LineSegment(Vector(-4, -83, 0), Vector(296, -83, 0)), False)
sketch2.addGeometry(Part.LineSegment(Vector(296, -83, 0), Vector(296, -90, 0)), False)
sketch2.addGeometry(Part.LineSegment(Vector(296, -90, 0), Vector(-4, -90, 0)), False)
sketch2.addConstraint(Sketcher.Constraint("Coincident", 0, 2, 1, 1))
sketch2.addConstraint(Sketcher.Constraint("Coincident", 1, 2, 2, 1))
sketch2.addConstraint(Sketcher.Constraint("Coincident", 2, 2, 3, 1))
sketch2.addConstraint(Sketcher.Constraint("Coincident", 3, 2, 0, 1))
sketch2.addConstraint(Sketcher.Constraint("Vertical", 0))
sketch2.addConstraint(Sketcher.Constraint("Horizontal", 1))
sketch2.addConstraint(Sketcher.Constraint("Vertical", 2))
sketch2.addConstraint(Sketcher.Constraint("Horizontal", 3))
sketch2.addConstraint(Sketcher.Constraint("DistanceX", 1, 1, 1, 2, 300.0))
sketch2.addConstraint(Sketcher.Constraint("DistanceY", 0, 1, 0, 2, 7.0))
sketch2.addConstraint(Sketcher.Constraint("DistanceX", 0, 2, -1, 1, 4.287656))
sketch2.addConstraint(Sketcher.Constraint("DistanceY", 0, 2, -1, 1, 82.914214))
sketch2.setExpression("Constraints[8]", "Params.sketch2_width")
sketch2.setExpression("Constraints[9]", "Params.sketch2_height")
pocket1 = body.newObject("PartDesign::Pocket", "Pocket")
pocket1.Profile = sketch2
pocket1.setExpression("Length", "Params.pocket1_length")
pocket1.Reversed = True

sketch3 = body.newObject("Sketcher::SketchObject", "Sketch002")
sketch3.AttachmentSupport = (doc.getObject("XY_Plane"), [""])
sketch3.MapMode = "FlatFace"
sketch3.addGeometry(Part.LineSegment(Vector(118, -67, 0), Vector(111, -74, 0)), False)
sketch3.addGeometry(Part.LineSegment(Vector(111, -74, 0), Vector(54, -17, 0)), False)
sketch3.addGeometry(Part.LineSegment(Vector(54, -17, 0), Vector(62, -10, 0)), False)
sketch3.addGeometry(Part.LineSegment(Vector(62, -10, 0), Vector(118, -67, 0)), False)
sketch3.addGeometry(Part.LineSegment(Vector(170, -67, 0), Vector(163, -74, 0)), False)
sketch3.addGeometry(Part.LineSegment(Vector(163, -74, 0), Vector(135, -46, 0)), False)
sketch3.addGeometry(Part.LineSegment(Vector(135, -46, 0), Vector(142, -39, 0)), False)
sketch3.addGeometry(Part.LineSegment(Vector(142, -39, 0), Vector(170, -67, 0)), False)
sketch3.addGeometry(Part.LineSegment(Vector(222, -67, 0), Vector(215, -74, 0)), False)
sketch3.addGeometry(Part.LineSegment(Vector(215, -74, 0), Vector(187, -46, 0)), False)
sketch3.addGeometry(Part.LineSegment(Vector(187, -46, 0), Vector(194, -39, 0)), False)
sketch3.addGeometry(Part.LineSegment(Vector(194, -39, 0), Vector(222, -67, 0)), False)
sketch3.addGeometry(Part.LineSegment(Vector(274, -68, 0), Vector(267, -75, 0)), False)
sketch3.addGeometry(Part.LineSegment(Vector(267, -75, 0), Vector(239, -46, 0)), False)
sketch3.addGeometry(Part.LineSegment(Vector(239, -46, 0), Vector(246, -39, 0)), False)
sketch3.addGeometry(Part.LineSegment(Vector(246, -39, 0), Vector(274, -68, 0)), False)
sketch3.addConstraint(Sketcher.Constraint("Coincident", 0, 2, 1, 1))
sketch3.addConstraint(Sketcher.Constraint("Coincident", 1, 2, 2, 1))
sketch3.addConstraint(Sketcher.Constraint("Coincident", 2, 2, 3, 1))
sketch3.addConstraint(Sketcher.Constraint("Coincident", 3, 2, 0, 1))
sketch3.addConstraint(Sketcher.Constraint("Coincident", 4, 2, 5, 1))
sketch3.addConstraint(Sketcher.Constraint("Coincident", 5, 2, 6, 1))
sketch3.addConstraint(Sketcher.Constraint("Coincident", 6, 2, 7, 1))
sketch3.addConstraint(Sketcher.Constraint("Coincident", 7, 2, 4, 1))
sketch3.addConstraint(Sketcher.Constraint("Coincident", 8, 2, 9, 1))
sketch3.addConstraint(Sketcher.Constraint("Coincident", 9, 2, 10, 1))
sketch3.addConstraint(Sketcher.Constraint("Coincident", 10, 2, 11, 1))
sketch3.addConstraint(Sketcher.Constraint("Coincident", 11, 2, 8, 1))
sketch3.addConstraint(Sketcher.Constraint("Coincident", 12, 2, 13, 1))
sketch3.addConstraint(Sketcher.Constraint("Coincident", 13, 2, 14, 1))
sketch3.addConstraint(Sketcher.Constraint("Coincident", 14, 2, 15, 1))
sketch3.addConstraint(Sketcher.Constraint("Coincident", 15, 2, 12, 1))
sketch3.addConstraint(Sketcher.Constraint("Perpendicular", 0, 1))
sketch3.addConstraint(Sketcher.Constraint("Perpendicular", 1, 2))
sketch3.addConstraint(Sketcher.Constraint("Perpendicular", 2, 3))
sketch3.addConstraint(Sketcher.Constraint("Perpendicular", 3, 4))
sketch3.addConstraint(Sketcher.Constraint("Perpendicular", 4, 5))
sketch3.addConstraint(Sketcher.Constraint("Perpendicular", 5, 6))
sketch3.addConstraint(Sketcher.Constraint("Perpendicular", 6, 7))
sketch3.addConstraint(Sketcher.Constraint("Perpendicular", 7, 8))
sketch3.addConstraint(Sketcher.Constraint("Perpendicular", 8, 9))
sketch3.addConstraint(Sketcher.Constraint("Perpendicular", 9, 10))
sketch3.addConstraint(Sketcher.Constraint("Perpendicular", 10, 11))
sketch3.addConstraint(Sketcher.Constraint("Perpendicular", 11, 12))
sketch3.addConstraint(Sketcher.Constraint("Perpendicular", 12, 13))
sketch3.addConstraint(Sketcher.Constraint("Perpendicular", 13, 14))
sketch3.addConstraint(Sketcher.Constraint("Perpendicular", 14, 15))
sketch3.addConstraint(Sketcher.Constraint("Equal", 2, 4))
sketch3.addConstraint(Sketcher.Constraint("Equal", 6, 8))
sketch3.addConstraint(Sketcher.Constraint("Equal", 7, 9))
sketch3.addConstraint(Sketcher.Constraint("Equal", 10, 12))
sketch3.addConstraint(Sketcher.Constraint("Equal", 11, 13))
sketch3.addConstraint(Sketcher.Constraint("Angle", 0, Q("-135 deg")))
sketch3.addConstraint(Sketcher.Constraint("Distance", 0, 10.0))
sketch3.addConstraint(Sketcher.Constraint("Distance", 1, 80.0))
sketch3.addConstraint(Sketcher.Constraint("Distance", 5, 40.0))
sketch3.addConstraint(Sketcher.Constraint("DistanceY", 8, 2, -1, 1, 74.309398))
sketch3.addConstraint(Sketcher.Constraint("DistanceX", -1, 1, 0, 2, 111.046561))
sketch3.addConstraint(Sketcher.Constraint("DistanceY", 0, 2, -1, 1, 73.602291))
sketch3.addConstraint(Sketcher.Constraint("DistanceX", -1, 1, 4, 2, 163.018909))
sketch3.addConstraint(Sketcher.Constraint("DistanceY", 12, 2, -1, 1, 74.662951))
sketch3.addConstraint(Sketcher.Constraint("DistanceY", 4, 2, 3, 2, 7.424621))
sketch3.addConstraint(Sketcher.Constraint("DistanceX", 7, 2, 8, 2, 44.901281))
sketch3.addConstraint(Sketcher.Constraint("DistanceX", 11, 2, 12, 2, 44.90128))
sketch3.setExpression("Constraints[37]", "Params.sketch3_length")
sketch3.setExpression("Constraints[38]", "Params.sketch3_length2")
sketch3.setExpression("Constraints[39]", "Params.sketch3_length3")
pocket2 = body.newObject("PartDesign::Pocket", "Pocket001")
pocket2.Profile = sketch3
pocket2.setExpression("Length", "Params.pocket2_length")
pocket2.Reversed = True

doc.recompute()
